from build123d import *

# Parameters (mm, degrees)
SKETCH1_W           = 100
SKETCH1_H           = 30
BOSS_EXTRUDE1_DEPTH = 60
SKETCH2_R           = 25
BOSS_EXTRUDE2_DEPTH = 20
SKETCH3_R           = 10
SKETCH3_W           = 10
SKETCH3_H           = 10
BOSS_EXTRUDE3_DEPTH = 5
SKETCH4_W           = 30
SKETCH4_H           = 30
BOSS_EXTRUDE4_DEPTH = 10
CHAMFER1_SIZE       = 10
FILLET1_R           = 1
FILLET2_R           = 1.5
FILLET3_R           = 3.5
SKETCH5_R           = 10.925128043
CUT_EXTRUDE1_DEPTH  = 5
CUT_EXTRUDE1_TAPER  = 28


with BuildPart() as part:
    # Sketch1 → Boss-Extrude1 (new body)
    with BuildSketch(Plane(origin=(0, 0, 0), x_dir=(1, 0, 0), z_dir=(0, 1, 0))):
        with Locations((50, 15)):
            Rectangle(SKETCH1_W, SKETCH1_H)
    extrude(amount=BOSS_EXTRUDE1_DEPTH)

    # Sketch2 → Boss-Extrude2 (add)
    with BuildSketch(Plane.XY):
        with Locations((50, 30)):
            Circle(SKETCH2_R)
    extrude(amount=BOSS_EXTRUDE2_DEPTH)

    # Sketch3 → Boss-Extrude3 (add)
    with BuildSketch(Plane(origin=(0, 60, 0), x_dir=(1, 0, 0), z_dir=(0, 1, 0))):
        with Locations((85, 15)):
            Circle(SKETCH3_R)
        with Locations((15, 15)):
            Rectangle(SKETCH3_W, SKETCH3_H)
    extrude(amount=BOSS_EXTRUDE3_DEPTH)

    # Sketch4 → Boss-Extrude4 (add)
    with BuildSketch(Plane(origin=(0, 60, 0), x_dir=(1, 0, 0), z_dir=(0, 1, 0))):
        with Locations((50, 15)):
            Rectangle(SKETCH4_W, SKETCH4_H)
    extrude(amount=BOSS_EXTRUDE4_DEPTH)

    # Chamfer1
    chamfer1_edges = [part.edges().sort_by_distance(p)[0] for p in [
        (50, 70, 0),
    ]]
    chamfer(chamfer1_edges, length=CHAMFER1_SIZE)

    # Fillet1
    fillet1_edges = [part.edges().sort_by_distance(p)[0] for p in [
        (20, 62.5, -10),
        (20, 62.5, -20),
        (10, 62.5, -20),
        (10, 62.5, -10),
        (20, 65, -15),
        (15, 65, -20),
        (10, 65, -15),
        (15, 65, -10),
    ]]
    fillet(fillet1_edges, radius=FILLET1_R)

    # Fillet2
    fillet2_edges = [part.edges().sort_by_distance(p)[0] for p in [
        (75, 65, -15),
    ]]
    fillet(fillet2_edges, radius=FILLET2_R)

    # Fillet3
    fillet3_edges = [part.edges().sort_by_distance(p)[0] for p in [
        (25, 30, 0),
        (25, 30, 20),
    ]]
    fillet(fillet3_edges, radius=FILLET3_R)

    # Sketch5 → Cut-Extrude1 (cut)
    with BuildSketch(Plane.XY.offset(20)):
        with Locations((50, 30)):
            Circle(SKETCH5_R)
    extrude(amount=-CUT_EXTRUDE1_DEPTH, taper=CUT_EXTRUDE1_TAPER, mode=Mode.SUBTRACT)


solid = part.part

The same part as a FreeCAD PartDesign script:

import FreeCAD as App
import Part
import Sketcher
from FreeCAD import Vector


def edges_at(feature, points):
    """Names of the edges that pass closest to the given points."""
    edges = feature.Shape.Edges
    near = lambda p: min(range(len(edges)), key=lambda i: edges[i].distToShape(Part.Vertex(*p))[0])
    return sorted({f"Edge{near(p) + 1}" for p in points})

doc = App.newDocument("Part")
params = doc.addObject("Spreadsheet::Sheet", "Params")
for row, (alias, value) in enumerate([
    ("sketch1_width", "100 mm"),
    ("sketch1_height", "30 mm"),
    ("pad1_length", "60 mm"),
    ("sketch2_diameter", "50 mm"),
    ("pad2_length", "20 mm"),
    ("sketch3_diameter", "20 mm"),
    ("sketch3_width", "10 mm"),
    ("pad3_length", "5 mm"),
    ("sketch4_width", "30 mm"),
    ("pad4_length", "10 mm"),
    ("chamfer_size", "10 mm"),
    ("fillet_radius", "1 mm"),
    ("fillet2_radius", "1.5 mm"),
    ("fillet3_radius", "3.5 mm"),
    ("pocket1_length", "5 mm"),
    ("pocket1_taper", "-28 deg"),
], start=1):
    params.set(f"A{row}", alias)
    params.set(f"B{row}", "=" + value)
    params.setAlias(f"B{row}", alias)

body = doc.addObject("PartDesign::Body", "Body")

sketch1 = doc.addObject("Sketcher::SketchObject", "Sketch")
body.addObject(sketch1)
sketch1.AttachmentSupport = (doc.XZ_Plane, [""])
sketch1.MapMode = "FlatFace"
sketch1.addGeometry(Part.LineSegment(Vector(0, -30, 0), Vector(0, 0, 0)), False)
sketch1.addGeometry(Part.LineSegment(Vector(0, 0, 0), Vector(100, 0, 0)), False)
sketch1.addGeometry(Part.LineSegment(Vector(100, 0, 0), Vector(100, -30, 0)), False)
sketch1.addGeometry(Part.LineSegment(Vector(100, -30, 0), Vector(0, -30, 0)), False)
sketch1.addConstraint(Sketcher.Constraint("Coincident", 0, 2, 1, 1))
sketch1.addConstraint(Sketcher.Constraint("Coincident", 1, 2, 2, 1))
sketch1.addConstraint(Sketcher.Constraint("Coincident", 2, 2, 3, 1))
sketch1.addConstraint(Sketcher.Constraint("Coincident", 3, 2, 0, 1))
sketch1.addConstraint(Sketcher.Constraint("Vertical", 0))
sketch1.addConstraint(Sketcher.Constraint("Horizontal", 1))
sketch1.addConstraint(Sketcher.Constraint("Vertical", 2))
sketch1.addConstraint(Sketcher.Constraint("Horizontal", 3))
sketch1.addConstraint(Sketcher.Constraint("Coincident", 0, 2, -1, 1))
sketch1.addConstraint(Sketcher.Constraint("DistanceX", 1, 1, 1, 2, 100.0))
sketch1.addConstraint(Sketcher.Constraint("DistanceY", 0, 1, 0, 2, 30.0))
sketch1.setExpression("Constraints[9]", "Params.sketch1_width")
sketch1.setExpression("Constraints[10]", "Params.sketch1_height")
pad1 = doc.addObject("PartDesign::Pad", "Pad")
body.addObject(pad1)
pad1.Profile = sketch1
pad1.setExpression("Length", "Params.pad1_length")
pad1.Reversed = True

sketch2 = doc.addObject("Sketcher::SketchObject", "Sketch001")
body.addObject(sketch2)
sketch2.AttachmentSupport = (doc.XY_Plane, [""])
sketch2.MapMode = "FlatFace"
sketch2.addGeometry(Part.Circle(Vector(50, 30, 0), Vector(0, 0, 1), 25), False)
sketch2.addConstraint(Sketcher.Constraint("Diameter", 0, 50.0))
sketch2.addConstraint(Sketcher.Constraint("DistanceX", -1, 1, 0, 3, 50.0))
sketch2.addConstraint(Sketcher.Constraint("DistanceY", -1, 1, 0, 3, 30.0))
sketch2.setExpression("Constraints[0]", "Params.sketch2_diameter")
pad2 = doc.addObject("PartDesign::Pad", "Pad001")
body.addObject(pad2)
pad2.Profile = sketch2
pad2.setExpression("Length", "Params.pad2_length")

sketch3 = doc.addObject("Sketcher::SketchObject", "Sketch002")
body.addObject(sketch3)
sketch3.AttachmentSupport = (doc.XZ_Plane, [""])
sketch3.MapMode = "FlatFace"
sketch3.AttachmentOffset = App.Placement(Vector(0, 0, -60), App.Rotation())
sketch3.addGeometry(Part.Circle(Vector(85, -15, 0), Vector(0, 0, 1), 10), False)
sketch3.addGeometry(Part.LineSegment(Vector(10, -20, 0), Vector(10, -10, 0)), False)
sketch3.addGeometry(Part.LineSegment(Vector(10, -10, 0), Vector(20, -10, 0)), False)
sketch3.addGeometry(Part.LineSegment(Vector(20, -10, 0), Vector(20, -20, 0)), False)
sketch3.addGeometry(Part.LineSegment(Vector(20, -20, 0), Vector(10, -20, 0)), False)
sketch3.addConstraint(Sketcher.Constraint("Coincident", 1, 2, 2, 1))
sketch3.addConstraint(Sketcher.Constraint("Coincident", 2, 2, 3, 1))
sketch3.addConstraint(Sketcher.Constraint("Coincident", 3, 2, 4, 1))
sketch3.addConstraint(Sketcher.Constraint("Coincident", 4, 2, 1, 1))
sketch3.addConstraint(Sketcher.Constraint("Vertical", 1))
sketch3.addConstraint(Sketcher.Constraint("Horizontal", 2))
sketch3.addConstraint(Sketcher.Constraint("Vertical", 3))
sketch3.addConstraint(Sketcher.Constraint("Horizontal", 4))
sketch3.addConstraint(Sketcher.Constraint("Equal", 4, 1))
sketch3.addConstraint(Sketcher.Constraint("Diameter", 0, 20.0))
sketch3.addConstraint(Sketcher.Constraint("DistanceX", 2, 1, 2, 2, 10.0))
sketch3.addConstraint(Sketcher.Constraint("DistanceX", -1, 1, 0, 3, 85.0))
sketch3.addConstraint(Sketcher.Constraint("DistanceY", 0, 3, -1, 1, 15.0))
sketch3.addConstraint(Sketcher.Constraint("DistanceX", -1, 1, 1, 2, 10.0))
sketch3.addConstraint(Sketcher.Constraint("DistanceY", 1, 2, -1, 1, 10.0))
sketch3.setExpression("Constraints[9]", "Params.sketch3_diameter")
sketch3.setExpression("Constraints[10]", "Params.sketch3_width")
pad3 = doc.addObject("PartDesign::Pad", "Pad002")
body.addObject(pad3)
pad3.Profile = sketch3
pad3.setExpression("Length", "Params.pad3_length")
pad3.Reversed = True

sketch4 = doc.addObject("Sketcher::SketchObject", "Sketch003")
body.addObject(sketch4)
sketch4.AttachmentSupport = (doc.XZ_Plane, [""])
sketch4.MapMode = "FlatFace"
sketch4.AttachmentOffset = App.Placement(Vector(0, 0, -60), App.Rotation())
sketch4.addGeometry(Part.LineSegment(Vector(35, -30, 0), Vector(35, 0, 0)), False)
sketch4.addGeometry(Part.LineSegment(Vector(35, 0, 0), Vector(65, 0, 0)), False)
sketch4.addGeometry(Part.LineSegment(Vector(65, 0, 0), Vector(65, -30, 0)), False)
sketch4.addGeometry(Part.LineSegment(Vector(65, -30, 0), Vector(35, -30, 0)), False)
sketch4.addConstraint(Sketcher.Constraint("Coincident", 0, 2, 1, 1))
sketch4.addConstraint(Sketcher.Constraint("Coincident", 1, 2, 2, 1))
sketch4.addConstraint(Sketcher.Constraint("Coincident", 2, 2, 3, 1))
sketch4.addConstraint(Sketcher.Constraint("Coincident", 3, 2, 0, 1))
sketch4.addConstraint(Sketcher.Constraint("Vertical", 0))
sketch4.addConstraint(Sketcher.Constraint("Horizontal", 1))
sketch4.addConstraint(Sketcher.Constraint("Vertical", 2))
sketch4.addConstraint(Sketcher.Constraint("Horizontal", 3))
sketch4.addConstraint(Sketcher.Constraint("PointOnObject", 0, 2, -1))
sketch4.addConstraint(Sketcher.Constraint("Equal", 3, 0))
sketch4.addConstraint(Sketcher.Constraint("DistanceX", 1, 1, 1, 2, 30.0))
sketch4.addConstraint(Sketcher.Constraint("DistanceX", -1, 1, 0, 2, 35.0))
sketch4.setExpression("Constraints[10]", "Params.sketch4_width")
pad4 = doc.addObject("PartDesign::Pad", "Pad003")
body.addObject(pad4)
pad4.Profile = sketch4
pad4.setExpression("Length", "Params.pad4_length")
pad4.Reversed = True
doc.recompute()

chamfer = doc.addObject("PartDesign::Chamfer", "Chamfer")
body.addObject(chamfer)
chamfer.Base = (pad4, edges_at(pad4, [(50, 70, 0)]))
chamfer.setExpression("Size", "Params.chamfer_size")
doc.recompute()

fillet = doc.addObject("PartDesign::Fillet", "Fillet")
body.addObject(fillet)
fillet.Base = (chamfer, edges_at(chamfer, [
    (20, 62.5, -10),
    (20, 62.5, -20),
    (10, 62.5, -20),
    (10, 62.5, -10),
    (20, 65, -15),
    (15, 65, -20),
    (10, 65, -15),
    (15, 65, -10),
]))
fillet.setExpression("Radius", "Params.fillet_radius")
doc.recompute()

fillet2 = doc.addObject("PartDesign::Fillet", "Fillet001")
body.addObject(fillet2)
fillet2.Base = (fillet, edges_at(fillet, [(75, 65, -15)]))
fillet2.setExpression("Radius", "Params.fillet2_radius")
doc.recompute()

fillet3 = doc.addObject("PartDesign::Fillet", "Fillet002")
body.addObject(fillet3)
fillet3.Base = (fillet2, edges_at(fillet2, [(25, 30, 0), (25, 30, 20)]))
fillet3.setExpression("Radius", "Params.fillet3_radius")

sketch5 = doc.addObject("Sketcher::SketchObject", "Sketch004")
body.addObject(sketch5)
sketch5.AttachmentSupport = (doc.XY_Plane, [""])
sketch5.MapMode = "FlatFace"
sketch5.AttachmentOffset = App.Placement(Vector(0, 0, 20), App.Rotation())
sketch5.addGeometry(Part.Circle(Vector(50, 30, 0), Vector(0, 0, 1), 11), False)
sketch5.addConstraint(Sketcher.Constraint("DistanceX", -1, 1, 0, 3, 50.0))
sketch5.addConstraint(Sketcher.Constraint("DistanceY", -1, 1, 0, 3, 30.0))
sketch5.addConstraint(Sketcher.Constraint("Diameter", 0, 21.850256))
pocket1 = doc.addObject("PartDesign::Pocket", "Pocket")
body.addObject(pocket1)
pocket1.Profile = sketch5
pocket1.setExpression("Length", "Params.pocket1_length")
pocket1.setExpression("TaperAngle", "Params.pocket1_taper")

doc.recompute()
